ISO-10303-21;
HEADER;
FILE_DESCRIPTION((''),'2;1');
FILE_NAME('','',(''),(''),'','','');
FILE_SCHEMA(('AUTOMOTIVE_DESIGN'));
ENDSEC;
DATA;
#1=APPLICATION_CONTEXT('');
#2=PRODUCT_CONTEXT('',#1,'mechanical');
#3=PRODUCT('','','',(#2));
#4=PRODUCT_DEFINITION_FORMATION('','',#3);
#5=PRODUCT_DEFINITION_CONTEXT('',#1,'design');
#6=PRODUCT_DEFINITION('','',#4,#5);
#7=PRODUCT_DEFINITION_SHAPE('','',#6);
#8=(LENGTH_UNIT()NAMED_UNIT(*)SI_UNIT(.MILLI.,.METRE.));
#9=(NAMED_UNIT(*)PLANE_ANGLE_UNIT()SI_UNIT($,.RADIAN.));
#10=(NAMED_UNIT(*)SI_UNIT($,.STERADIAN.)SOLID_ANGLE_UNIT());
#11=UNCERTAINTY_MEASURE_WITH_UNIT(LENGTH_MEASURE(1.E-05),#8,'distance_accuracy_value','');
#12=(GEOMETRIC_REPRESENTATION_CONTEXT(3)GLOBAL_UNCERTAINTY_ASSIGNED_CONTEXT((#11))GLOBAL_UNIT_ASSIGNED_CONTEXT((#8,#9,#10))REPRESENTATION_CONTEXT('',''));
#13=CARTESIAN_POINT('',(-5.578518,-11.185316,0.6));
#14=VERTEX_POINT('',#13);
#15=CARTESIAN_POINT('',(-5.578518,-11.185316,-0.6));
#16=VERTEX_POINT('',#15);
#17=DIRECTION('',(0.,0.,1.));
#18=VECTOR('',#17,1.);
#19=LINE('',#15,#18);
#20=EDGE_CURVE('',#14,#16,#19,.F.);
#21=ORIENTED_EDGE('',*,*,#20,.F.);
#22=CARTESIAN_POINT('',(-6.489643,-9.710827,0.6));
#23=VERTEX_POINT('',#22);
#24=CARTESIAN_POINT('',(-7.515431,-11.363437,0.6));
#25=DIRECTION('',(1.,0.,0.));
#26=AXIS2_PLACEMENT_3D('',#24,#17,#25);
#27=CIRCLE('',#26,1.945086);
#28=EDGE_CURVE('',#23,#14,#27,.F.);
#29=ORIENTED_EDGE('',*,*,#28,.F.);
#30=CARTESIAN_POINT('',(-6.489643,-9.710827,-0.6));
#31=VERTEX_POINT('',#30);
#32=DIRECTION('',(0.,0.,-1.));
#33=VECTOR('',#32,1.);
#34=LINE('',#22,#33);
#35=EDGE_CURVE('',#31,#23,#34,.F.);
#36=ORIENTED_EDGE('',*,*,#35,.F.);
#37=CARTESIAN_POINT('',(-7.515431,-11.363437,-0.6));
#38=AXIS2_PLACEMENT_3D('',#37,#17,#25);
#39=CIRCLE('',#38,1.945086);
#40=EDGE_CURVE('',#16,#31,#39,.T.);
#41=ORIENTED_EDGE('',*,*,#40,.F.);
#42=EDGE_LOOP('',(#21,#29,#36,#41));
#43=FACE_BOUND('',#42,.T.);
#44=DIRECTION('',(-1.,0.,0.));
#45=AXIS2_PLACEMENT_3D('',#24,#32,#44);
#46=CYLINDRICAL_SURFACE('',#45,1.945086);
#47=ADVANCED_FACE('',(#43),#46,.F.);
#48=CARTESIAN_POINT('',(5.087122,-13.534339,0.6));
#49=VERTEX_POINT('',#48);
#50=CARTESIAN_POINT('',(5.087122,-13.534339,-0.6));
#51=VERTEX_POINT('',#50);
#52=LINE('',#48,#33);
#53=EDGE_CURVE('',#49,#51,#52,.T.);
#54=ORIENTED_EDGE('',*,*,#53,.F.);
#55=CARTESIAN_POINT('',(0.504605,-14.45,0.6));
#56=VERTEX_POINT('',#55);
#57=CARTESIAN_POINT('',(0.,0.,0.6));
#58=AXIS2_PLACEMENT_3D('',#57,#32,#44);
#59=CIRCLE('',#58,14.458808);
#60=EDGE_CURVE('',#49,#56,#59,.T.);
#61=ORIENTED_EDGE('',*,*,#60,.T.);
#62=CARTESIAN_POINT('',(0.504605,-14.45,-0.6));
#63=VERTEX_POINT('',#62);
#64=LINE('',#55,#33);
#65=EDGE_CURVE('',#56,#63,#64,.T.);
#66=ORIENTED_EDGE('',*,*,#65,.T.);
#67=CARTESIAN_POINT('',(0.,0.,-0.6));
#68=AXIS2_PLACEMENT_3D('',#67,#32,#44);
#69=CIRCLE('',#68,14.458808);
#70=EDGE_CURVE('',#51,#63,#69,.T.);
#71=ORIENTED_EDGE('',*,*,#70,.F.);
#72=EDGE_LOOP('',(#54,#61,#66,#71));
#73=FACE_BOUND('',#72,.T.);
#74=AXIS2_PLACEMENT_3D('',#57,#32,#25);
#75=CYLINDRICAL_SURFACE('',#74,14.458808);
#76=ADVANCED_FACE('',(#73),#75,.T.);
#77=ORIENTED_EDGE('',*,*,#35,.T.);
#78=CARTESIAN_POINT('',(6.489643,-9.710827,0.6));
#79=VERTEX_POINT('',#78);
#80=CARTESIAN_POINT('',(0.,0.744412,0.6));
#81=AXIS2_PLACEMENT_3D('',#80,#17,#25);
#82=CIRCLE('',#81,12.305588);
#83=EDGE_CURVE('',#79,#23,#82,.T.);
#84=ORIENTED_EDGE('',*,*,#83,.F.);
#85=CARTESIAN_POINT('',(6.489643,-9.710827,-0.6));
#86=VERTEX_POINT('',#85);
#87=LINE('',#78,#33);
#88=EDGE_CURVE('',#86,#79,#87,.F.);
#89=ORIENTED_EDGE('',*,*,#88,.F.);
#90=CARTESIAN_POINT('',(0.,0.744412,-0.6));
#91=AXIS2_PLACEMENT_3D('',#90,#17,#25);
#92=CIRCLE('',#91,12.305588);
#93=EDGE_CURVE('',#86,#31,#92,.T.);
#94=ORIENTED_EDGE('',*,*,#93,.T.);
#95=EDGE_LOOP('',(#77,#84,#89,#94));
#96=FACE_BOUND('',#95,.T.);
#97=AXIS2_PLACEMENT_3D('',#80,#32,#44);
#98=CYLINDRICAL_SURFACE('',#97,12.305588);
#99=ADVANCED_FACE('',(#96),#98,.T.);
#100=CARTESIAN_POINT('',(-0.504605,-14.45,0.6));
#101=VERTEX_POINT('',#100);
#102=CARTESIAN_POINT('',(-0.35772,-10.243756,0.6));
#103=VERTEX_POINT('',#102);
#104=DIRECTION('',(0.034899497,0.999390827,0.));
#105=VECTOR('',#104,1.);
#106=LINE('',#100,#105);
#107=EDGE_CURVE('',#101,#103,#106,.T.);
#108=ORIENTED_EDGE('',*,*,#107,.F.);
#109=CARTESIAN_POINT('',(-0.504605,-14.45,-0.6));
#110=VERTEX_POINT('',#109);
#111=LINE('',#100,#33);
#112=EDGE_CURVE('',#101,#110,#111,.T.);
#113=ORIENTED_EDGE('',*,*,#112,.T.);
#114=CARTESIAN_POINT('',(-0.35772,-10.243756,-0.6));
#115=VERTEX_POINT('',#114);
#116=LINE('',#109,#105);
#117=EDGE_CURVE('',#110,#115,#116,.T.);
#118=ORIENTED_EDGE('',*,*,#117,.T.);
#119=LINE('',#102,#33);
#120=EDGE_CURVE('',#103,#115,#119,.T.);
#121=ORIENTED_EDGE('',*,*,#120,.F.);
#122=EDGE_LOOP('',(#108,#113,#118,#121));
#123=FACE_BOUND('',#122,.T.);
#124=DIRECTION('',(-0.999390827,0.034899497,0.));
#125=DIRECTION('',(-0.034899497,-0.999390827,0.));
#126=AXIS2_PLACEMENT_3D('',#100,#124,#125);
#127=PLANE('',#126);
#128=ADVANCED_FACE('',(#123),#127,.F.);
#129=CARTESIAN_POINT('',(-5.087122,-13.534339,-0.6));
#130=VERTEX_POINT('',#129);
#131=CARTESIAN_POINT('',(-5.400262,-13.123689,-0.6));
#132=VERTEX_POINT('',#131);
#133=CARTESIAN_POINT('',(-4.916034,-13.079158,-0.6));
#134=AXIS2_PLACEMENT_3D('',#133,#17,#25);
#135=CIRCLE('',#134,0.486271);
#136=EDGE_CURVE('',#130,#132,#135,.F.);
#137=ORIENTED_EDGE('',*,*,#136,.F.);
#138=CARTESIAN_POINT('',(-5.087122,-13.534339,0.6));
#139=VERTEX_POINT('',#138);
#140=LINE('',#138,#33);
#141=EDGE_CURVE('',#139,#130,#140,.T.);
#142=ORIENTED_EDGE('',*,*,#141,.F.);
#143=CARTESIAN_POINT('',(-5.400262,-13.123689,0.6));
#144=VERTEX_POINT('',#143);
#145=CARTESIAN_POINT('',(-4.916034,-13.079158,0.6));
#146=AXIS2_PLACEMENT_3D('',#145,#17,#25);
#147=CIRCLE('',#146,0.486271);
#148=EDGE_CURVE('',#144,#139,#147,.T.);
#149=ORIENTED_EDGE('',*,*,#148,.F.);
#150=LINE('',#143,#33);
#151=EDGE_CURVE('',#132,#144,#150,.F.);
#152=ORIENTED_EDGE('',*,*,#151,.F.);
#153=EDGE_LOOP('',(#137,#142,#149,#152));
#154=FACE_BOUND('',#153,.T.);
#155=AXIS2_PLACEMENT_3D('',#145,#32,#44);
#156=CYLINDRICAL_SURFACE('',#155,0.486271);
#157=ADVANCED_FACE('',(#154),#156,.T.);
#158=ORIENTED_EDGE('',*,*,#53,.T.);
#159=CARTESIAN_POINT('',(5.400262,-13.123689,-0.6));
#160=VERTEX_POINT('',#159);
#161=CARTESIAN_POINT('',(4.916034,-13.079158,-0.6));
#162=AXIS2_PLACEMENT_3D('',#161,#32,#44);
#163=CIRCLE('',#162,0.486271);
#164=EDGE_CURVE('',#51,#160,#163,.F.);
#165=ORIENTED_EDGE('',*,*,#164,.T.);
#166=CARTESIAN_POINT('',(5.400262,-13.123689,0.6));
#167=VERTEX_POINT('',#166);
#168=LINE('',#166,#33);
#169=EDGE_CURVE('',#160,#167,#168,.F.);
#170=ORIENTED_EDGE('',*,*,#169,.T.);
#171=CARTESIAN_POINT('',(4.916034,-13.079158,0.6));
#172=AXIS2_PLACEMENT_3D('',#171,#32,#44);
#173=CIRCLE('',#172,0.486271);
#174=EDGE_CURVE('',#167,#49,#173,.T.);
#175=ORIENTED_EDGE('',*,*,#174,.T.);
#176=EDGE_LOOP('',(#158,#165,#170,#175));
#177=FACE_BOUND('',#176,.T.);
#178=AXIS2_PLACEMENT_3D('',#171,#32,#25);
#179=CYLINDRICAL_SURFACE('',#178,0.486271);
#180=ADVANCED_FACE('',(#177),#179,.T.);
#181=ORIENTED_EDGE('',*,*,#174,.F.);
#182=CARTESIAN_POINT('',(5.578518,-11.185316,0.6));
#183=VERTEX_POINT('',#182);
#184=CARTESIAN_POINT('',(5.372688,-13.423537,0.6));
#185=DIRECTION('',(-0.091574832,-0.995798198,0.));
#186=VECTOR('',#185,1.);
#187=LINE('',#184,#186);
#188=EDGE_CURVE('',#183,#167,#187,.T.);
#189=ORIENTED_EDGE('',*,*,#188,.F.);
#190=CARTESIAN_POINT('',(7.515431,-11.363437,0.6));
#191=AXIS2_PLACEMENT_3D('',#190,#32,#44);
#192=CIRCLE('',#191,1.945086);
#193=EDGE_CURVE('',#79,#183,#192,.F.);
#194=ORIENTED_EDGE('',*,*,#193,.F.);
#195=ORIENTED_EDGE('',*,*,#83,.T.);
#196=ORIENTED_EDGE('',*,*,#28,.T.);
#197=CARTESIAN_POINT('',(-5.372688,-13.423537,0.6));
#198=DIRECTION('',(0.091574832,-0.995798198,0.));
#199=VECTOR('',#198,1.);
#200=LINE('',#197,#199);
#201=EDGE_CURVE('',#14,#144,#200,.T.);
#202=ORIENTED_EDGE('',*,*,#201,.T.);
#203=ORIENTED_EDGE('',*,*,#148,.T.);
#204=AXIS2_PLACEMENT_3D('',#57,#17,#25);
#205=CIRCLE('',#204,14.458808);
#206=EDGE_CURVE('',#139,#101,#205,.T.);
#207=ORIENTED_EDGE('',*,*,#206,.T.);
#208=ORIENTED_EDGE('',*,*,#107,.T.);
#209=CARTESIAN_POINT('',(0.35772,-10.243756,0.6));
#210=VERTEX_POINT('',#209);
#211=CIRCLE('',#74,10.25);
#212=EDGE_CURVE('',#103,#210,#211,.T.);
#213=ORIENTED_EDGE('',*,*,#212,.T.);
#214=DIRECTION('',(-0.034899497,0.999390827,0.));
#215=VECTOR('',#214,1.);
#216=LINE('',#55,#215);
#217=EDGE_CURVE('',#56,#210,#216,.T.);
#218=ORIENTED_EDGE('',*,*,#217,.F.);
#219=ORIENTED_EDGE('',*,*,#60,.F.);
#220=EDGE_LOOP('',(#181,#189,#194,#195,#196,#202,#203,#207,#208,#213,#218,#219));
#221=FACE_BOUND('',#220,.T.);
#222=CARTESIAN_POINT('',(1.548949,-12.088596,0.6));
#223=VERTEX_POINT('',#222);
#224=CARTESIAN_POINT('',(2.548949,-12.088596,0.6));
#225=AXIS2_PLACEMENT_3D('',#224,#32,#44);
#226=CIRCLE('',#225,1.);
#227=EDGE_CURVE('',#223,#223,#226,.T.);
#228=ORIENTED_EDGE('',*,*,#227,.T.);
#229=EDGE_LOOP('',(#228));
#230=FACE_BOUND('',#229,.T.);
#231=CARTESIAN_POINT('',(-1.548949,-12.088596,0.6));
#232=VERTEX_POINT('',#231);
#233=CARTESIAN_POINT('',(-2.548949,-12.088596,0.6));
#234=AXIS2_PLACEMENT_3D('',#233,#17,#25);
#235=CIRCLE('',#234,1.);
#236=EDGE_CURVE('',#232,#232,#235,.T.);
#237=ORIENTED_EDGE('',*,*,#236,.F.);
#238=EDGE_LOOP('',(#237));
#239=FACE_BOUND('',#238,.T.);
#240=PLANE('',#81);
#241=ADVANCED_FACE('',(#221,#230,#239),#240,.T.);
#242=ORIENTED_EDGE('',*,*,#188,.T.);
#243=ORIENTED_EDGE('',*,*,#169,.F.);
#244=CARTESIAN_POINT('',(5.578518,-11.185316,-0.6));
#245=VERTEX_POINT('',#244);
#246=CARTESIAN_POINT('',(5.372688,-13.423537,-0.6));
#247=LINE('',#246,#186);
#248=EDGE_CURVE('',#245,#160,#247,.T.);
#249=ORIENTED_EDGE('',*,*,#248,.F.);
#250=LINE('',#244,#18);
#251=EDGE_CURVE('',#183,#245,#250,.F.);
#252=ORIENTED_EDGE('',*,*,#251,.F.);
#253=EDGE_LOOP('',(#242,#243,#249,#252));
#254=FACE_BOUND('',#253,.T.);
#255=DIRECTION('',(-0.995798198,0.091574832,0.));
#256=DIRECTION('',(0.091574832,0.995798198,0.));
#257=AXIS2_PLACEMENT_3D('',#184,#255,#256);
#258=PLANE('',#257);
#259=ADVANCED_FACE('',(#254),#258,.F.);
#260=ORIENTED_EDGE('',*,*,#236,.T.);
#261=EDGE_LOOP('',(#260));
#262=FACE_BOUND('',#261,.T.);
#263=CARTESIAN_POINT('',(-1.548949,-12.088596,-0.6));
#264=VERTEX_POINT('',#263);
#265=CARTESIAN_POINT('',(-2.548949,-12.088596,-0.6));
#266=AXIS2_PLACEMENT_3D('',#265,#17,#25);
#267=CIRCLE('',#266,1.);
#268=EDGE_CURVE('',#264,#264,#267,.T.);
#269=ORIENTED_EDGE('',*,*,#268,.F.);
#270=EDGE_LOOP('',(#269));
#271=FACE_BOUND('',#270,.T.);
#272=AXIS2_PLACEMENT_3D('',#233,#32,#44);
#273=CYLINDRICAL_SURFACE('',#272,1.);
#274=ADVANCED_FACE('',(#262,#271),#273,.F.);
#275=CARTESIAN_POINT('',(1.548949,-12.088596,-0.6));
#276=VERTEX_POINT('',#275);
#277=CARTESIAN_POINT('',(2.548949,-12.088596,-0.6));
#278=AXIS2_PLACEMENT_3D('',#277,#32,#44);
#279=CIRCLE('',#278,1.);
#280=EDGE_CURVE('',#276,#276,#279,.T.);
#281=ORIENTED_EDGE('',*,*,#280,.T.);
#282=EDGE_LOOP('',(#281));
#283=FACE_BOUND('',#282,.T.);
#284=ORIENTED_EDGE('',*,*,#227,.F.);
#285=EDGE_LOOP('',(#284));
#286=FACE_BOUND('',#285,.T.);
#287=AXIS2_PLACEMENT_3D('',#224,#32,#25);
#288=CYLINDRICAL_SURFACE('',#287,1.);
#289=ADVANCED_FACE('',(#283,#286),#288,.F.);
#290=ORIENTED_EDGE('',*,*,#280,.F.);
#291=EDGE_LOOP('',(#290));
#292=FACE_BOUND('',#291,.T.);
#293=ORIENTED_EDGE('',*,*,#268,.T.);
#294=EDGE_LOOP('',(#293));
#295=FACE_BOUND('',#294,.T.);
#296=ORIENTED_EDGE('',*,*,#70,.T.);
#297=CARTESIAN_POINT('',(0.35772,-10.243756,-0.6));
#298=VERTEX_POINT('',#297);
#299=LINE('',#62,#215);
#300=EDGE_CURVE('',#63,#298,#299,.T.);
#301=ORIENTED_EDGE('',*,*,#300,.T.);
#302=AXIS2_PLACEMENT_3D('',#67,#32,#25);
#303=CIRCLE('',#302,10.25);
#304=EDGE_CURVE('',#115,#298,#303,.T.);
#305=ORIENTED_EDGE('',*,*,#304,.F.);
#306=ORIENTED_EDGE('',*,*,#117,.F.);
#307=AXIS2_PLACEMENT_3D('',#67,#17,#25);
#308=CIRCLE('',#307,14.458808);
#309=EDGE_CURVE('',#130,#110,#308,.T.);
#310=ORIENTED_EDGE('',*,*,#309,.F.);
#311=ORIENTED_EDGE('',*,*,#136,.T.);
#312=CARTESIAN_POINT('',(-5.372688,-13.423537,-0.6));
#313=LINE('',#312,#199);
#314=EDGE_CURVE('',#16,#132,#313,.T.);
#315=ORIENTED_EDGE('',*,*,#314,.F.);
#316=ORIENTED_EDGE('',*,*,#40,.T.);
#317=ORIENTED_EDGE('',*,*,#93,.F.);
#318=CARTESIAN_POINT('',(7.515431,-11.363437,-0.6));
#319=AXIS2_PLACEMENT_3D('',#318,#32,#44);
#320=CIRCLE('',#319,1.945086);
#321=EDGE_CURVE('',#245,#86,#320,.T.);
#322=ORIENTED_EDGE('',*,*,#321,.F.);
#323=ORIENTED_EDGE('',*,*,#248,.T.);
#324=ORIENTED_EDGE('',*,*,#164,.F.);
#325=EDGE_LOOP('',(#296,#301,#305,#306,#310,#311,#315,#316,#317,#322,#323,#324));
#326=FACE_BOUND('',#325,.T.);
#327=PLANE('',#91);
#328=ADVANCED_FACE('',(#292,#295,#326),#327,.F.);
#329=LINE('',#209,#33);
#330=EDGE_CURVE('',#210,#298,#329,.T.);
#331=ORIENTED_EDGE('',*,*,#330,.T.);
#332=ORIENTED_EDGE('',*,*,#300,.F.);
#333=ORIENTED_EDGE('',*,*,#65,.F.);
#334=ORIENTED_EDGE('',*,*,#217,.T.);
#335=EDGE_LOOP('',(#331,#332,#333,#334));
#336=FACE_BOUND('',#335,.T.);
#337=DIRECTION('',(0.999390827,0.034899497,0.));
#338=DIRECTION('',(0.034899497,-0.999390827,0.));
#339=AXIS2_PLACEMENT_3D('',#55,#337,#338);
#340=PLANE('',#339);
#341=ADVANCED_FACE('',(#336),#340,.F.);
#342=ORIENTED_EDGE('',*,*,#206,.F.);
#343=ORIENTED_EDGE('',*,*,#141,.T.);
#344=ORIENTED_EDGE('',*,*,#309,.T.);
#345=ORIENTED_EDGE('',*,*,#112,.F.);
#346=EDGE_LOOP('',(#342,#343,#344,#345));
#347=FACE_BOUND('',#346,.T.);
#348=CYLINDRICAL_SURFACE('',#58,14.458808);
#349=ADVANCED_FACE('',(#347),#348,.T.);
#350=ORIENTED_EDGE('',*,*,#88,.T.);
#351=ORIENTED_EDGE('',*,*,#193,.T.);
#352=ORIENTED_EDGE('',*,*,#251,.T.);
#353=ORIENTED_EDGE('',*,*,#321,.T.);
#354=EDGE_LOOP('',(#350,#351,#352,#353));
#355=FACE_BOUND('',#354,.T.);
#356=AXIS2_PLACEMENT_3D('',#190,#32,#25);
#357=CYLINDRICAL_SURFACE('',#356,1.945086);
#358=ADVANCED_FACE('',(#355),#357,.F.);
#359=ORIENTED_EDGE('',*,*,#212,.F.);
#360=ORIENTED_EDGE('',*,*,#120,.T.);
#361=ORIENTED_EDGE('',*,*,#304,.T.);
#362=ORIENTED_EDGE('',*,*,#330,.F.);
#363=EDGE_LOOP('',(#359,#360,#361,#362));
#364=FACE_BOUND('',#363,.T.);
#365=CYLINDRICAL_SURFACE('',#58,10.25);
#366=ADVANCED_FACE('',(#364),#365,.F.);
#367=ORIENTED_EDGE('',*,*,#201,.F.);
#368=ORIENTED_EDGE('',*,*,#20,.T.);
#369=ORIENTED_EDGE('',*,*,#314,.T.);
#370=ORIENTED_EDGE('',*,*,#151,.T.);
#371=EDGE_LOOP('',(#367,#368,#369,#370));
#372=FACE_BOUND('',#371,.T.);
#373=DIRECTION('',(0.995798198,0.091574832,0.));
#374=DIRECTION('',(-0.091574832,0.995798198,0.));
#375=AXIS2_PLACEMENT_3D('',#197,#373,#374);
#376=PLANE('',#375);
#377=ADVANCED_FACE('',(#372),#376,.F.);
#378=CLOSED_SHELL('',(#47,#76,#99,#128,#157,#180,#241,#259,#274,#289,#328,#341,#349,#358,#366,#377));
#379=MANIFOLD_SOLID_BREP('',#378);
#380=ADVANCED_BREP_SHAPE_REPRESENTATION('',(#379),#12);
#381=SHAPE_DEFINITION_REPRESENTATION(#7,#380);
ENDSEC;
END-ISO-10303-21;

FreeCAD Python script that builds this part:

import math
import FreeCAD as App
import Part
import Sketcher
from FreeCAD import Vector
Q = App.Units.Quantity


def edges_at(feature, points):
    """Names of the edges that pass closest to the given points."""
    edges = feature.Shape.Edges
    near = lambda p: min(range(len(edges)), key=lambda i: edges[i].distToShape(Part.Vertex(*p))[0])
    return sorted({f"Edge{near(p) + 1}" for p in points})

doc = App.newDocument("Part")
body = doc.addObject("PartDesign::Body", "Body")

# Sketch on XY plane
sketch1 = body.newObject("Sketcher::SketchObject", "Sketch")
sketch1.AttachmentSupport = (doc.getObject("XY_Plane"), [""])
sketch1.MapMode = "FlatFace"
sketch1.addGeometry([
    Part.LineSegment(Vector(-5.7, -10.2, 0), Vector(-5.4, -13.4, 0)),  # 0
    Part.ArcOfCircle(Part.Circle(Vector(0, 0, 0), Vector(0, 0, 1), 14.5), math.radians(-111.81), math.radians(-92)),  # 1
    Part.LineSegment(Vector(-0.5, -14.4, 0), Vector(-0.4, -10.2, 0)),  # 2
    Part.ArcOfCircle(Part.Circle(Vector(0, 0, 0), Vector(0, 0, 1), 10.2), math.radians(90), math.radians(268)),  # 3
    Part.LineSegment(Vector(0, 10.2, 0), Vector(0, 13.1, 0)),  # 4
    Part.ArcOfCircle(Part.Circle(Vector(0, 0.7, 0), Vector(0, 0, 1), 12.3), math.radians(90), math.radians(243)),  # 5
    Part.Circle(Vector(-2.5, -12.1, 0), Vector(0, 0, 1), 1),  # 6
], False)
sketch1.addConstraint([
    Sketcher.Constraint("Coincident", 0, 2, 1, 1),
    Sketcher.Constraint("Coincident", 1, 2, 2, 1),
    Sketcher.Constraint("Coincident", 2, 2, 3, 2),
    Sketcher.Constraint("Coincident", 3, 1, 4, 1),
    Sketcher.Constraint("Coincident", 4, 2, 5, 1),
    Sketcher.Constraint("Coincident", 5, 2, 0, 1),
    Sketcher.Constraint("Vertical", 4),
    Sketcher.Constraint("Coincident", 1, 3, -1, 1),
    Sketcher.Constraint("Coincident", 3, 3, -1, 1),
    Sketcher.Constraint("PointOnObject", 5, 3, -2),
    Sketcher.Constraint("PointOnObject", 3, 1, -2),
    Sketcher.Constraint("Diameter", 6, 2.0),
    Sketcher.Constraint("Angle", 2, Q("88 deg")),
    Sketcher.Constraint("Radius", 3, 10.25),
    Sketcher.Constraint("DistanceY", 4, 1, 4, 2, 2.8),
    Sketcher.Constraint("DistanceY", 1, 2, -1, 1, 14.45),
    Sketcher.Constraint("Radius", 5, 12.305588),
    Sketcher.Constraint("Radius", 1, 14.458808),
    Sketcher.Constraint("DistanceX", 5, 2, -1, 1, 5.6713),
    Sketcher.Constraint("Distance", 0, 3.260851),
    Sketcher.Constraint("DistanceX", 6, 3, -1, 1, 2.548949),
    Sketcher.Constraint("DistanceY", 6, 3, 5, 3, 12.833008),
])
pad1 = body.newObject("PartDesign::Pad", "Pad")
pad1.Profile = sketch1
pad1.Length = 1.2
pad1.Midplane = True
doc.recompute()

fillet = body.newObject("PartDesign::Fillet", "Fillet")
fillet.Base = (pad1, edges_at(pad1, [(-5.671, -10.176, 0)]))
fillet.Radius = 1.945086
doc.recompute()

fillet2 = body.newObject("PartDesign::Fillet", "Fillet001")
fillet2.Base = (fillet, edges_at(fillet, [(-5.373, -13.424, 0)]))
fillet2.Radius = 0.486271
body2 = doc.addObject("PartDesign::Body", "Body001")
doc.recompute()

body2.BaseFeature = body
doc.recompute()

mirroring = doc.addObject("Part::Mirroring", "Mirroring")
mirroring.Source = body
mirroring.Base = Vector(0, 13.05, 0.6)
mirroring.Normal = Vector(-1, 0, 0)
body3 = doc.addObject("PartDesign::Body", "Body002")
body3.BaseFeature = mirroring
boolean = body2.newObject("PartDesign::Boolean", "Boolean")
boolean.Type = "Fuse"
boolean.addObjects([body3])
doc.recompute()
mirroring.Visibility = False

doc.recompute()
